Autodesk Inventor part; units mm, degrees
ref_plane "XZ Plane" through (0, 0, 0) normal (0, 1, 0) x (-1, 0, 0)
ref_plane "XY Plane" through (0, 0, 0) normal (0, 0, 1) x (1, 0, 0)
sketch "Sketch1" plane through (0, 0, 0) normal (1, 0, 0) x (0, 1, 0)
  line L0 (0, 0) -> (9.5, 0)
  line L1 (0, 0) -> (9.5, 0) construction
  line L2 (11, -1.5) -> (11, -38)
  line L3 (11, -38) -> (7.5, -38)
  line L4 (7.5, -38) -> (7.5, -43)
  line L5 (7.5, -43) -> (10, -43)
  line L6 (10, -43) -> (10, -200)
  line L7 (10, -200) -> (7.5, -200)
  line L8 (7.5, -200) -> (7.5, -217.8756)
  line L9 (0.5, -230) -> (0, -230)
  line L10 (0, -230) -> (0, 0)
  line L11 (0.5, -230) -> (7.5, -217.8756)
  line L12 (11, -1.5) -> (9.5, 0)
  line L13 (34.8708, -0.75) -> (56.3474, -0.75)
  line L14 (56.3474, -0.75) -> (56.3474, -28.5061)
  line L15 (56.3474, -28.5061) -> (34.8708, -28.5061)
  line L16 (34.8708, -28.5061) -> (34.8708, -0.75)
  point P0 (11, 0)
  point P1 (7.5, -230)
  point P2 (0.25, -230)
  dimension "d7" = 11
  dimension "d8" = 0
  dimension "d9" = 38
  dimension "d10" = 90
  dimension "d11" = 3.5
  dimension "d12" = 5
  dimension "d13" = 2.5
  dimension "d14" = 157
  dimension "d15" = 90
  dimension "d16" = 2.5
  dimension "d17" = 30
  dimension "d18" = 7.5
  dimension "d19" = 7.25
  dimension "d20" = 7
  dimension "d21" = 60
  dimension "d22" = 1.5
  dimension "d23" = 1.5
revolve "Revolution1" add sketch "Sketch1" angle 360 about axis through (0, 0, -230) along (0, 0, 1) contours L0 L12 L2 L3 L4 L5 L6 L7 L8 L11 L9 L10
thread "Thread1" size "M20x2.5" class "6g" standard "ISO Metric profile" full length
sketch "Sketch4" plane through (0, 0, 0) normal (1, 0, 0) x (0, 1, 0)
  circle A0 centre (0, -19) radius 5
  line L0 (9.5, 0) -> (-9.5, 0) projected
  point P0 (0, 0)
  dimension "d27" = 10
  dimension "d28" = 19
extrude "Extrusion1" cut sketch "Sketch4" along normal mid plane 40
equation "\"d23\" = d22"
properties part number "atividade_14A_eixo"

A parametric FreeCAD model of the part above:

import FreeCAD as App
import Part
import Sketcher

V = App.Vector
Q = App.Units.Quantity


def add_polygon(sketch, points):
    """Adds a closed chain of lines whose ends are joined by coincident constraints."""
    first, n = sketch.GeometryCount, len(points)
    for a, b in zip(points, points[1:] + points[:1]):
        sketch.addGeometry(Part.LineSegment(App.Vector(*a, 0), App.Vector(*b, 0)), False)
    for i in range(n):
        sketch.addConstraint(Sketcher.Constraint("Coincident", first + i, 2, first + (i + 1) % n, 1))

doc = App.newDocument("Part")
body = doc.addObject("PartDesign::Body", "Body")

sketch1 = body.newObject("Sketcher::SketchObject", "Sketch")
sketch1.AttachmentSupport = (doc.getObject("YZ_Plane"), [""])
sketch1.MapMode = "FlatFace"
add_polygon(sketch1, [(9.5, 0), (0, 0), (0, -230), (0.5, -230), (7.5, -217.9), (7.5, -200), (10, -200), (10, -43), (7.5, -43), (7.5, -38), (11, -38), (11, -1.5)])
sketch1.addConstraint([
    Sketcher.Constraint("Horizontal", 0),
    Sketcher.Constraint("Vertical", 1),
    Sketcher.Constraint("Horizontal", 2),
    Sketcher.Constraint("Vertical", 4),
    Sketcher.Constraint("Horizontal", 5),
    Sketcher.Constraint("Vertical", 6),
    Sketcher.Constraint("Horizontal", 7),
    Sketcher.Constraint("Vertical", 8),
    Sketcher.Constraint("Horizontal", 9),
    Sketcher.Constraint("Vertical", 10),
    Sketcher.Constraint("Coincident", 0, 2, -1, 1),
    Sketcher.Constraint("Vertical", 4, 2, 7, 2),
    Sketcher.Constraint("DistanceY", 6, 1, 6, 2, Q("157 mm")),
    Sketcher.Constraint("DistanceY", 8, 1, 8, 2, Q("5 mm")),
    Sketcher.Constraint("Angle", 3, Q("60 deg")),
    Sketcher.Constraint("DistanceX", 5, 1, 5, 2, Q("2.5 mm")),
    Sketcher.Constraint("DistanceX", 9, 1, 9, 2, Q("3.5 mm")),
    Sketcher.Constraint("DistanceY", 8, 2, -1, 1, Q("38 mm")),
    Sketcher.Constraint("DistanceX", -1, 1, 9, 2, Q("11 mm")),
    Sketcher.Constraint("DistanceX", 2, 2, 3, 2, Q("7 mm")),
    Sketcher.Constraint("DistanceY", 2, 2, 4, 2, Q("30 mm")),
    Sketcher.Constraint("DistanceY", 10, 2, -1, 1, Q("1.5 mm")),
    Sketcher.Constraint("DistanceX", 11, 2, 10, 2, Q("1.5 mm")),
])
revolution = body.newObject("PartDesign::Revolution", "Revolution")
revolution.Profile = sketch1
revolution.ReferenceAxis = (sketch1, ["V_Axis"])
revolution.Angle = 360

sketch2 = body.newObject("Sketcher::SketchObject", "Sketch001")
sketch2.AttachmentSupport = (doc.getObject("YZ_Plane"), [""])
sketch2.MapMode = "FlatFace"
sketch2.addGeometry(Part.Circle(V(0, -19, 0), V(0, 0, 1), 5), False)
sketch2.addConstraint([
    Sketcher.Constraint("PointOnObject", 0, 3, -2),
    Sketcher.Constraint("Diameter", 0, Q("10 mm")),
    Sketcher.Constraint("DistanceY", 0, 3, -1, 1, Q("19 mm")),
])
pocket1 = body.newObject("PartDesign::Pocket", "Pocket")
pocket1.Profile = sketch2
pocket1.Length = 40
pocket1.Midplane = True

doc.recompute()
